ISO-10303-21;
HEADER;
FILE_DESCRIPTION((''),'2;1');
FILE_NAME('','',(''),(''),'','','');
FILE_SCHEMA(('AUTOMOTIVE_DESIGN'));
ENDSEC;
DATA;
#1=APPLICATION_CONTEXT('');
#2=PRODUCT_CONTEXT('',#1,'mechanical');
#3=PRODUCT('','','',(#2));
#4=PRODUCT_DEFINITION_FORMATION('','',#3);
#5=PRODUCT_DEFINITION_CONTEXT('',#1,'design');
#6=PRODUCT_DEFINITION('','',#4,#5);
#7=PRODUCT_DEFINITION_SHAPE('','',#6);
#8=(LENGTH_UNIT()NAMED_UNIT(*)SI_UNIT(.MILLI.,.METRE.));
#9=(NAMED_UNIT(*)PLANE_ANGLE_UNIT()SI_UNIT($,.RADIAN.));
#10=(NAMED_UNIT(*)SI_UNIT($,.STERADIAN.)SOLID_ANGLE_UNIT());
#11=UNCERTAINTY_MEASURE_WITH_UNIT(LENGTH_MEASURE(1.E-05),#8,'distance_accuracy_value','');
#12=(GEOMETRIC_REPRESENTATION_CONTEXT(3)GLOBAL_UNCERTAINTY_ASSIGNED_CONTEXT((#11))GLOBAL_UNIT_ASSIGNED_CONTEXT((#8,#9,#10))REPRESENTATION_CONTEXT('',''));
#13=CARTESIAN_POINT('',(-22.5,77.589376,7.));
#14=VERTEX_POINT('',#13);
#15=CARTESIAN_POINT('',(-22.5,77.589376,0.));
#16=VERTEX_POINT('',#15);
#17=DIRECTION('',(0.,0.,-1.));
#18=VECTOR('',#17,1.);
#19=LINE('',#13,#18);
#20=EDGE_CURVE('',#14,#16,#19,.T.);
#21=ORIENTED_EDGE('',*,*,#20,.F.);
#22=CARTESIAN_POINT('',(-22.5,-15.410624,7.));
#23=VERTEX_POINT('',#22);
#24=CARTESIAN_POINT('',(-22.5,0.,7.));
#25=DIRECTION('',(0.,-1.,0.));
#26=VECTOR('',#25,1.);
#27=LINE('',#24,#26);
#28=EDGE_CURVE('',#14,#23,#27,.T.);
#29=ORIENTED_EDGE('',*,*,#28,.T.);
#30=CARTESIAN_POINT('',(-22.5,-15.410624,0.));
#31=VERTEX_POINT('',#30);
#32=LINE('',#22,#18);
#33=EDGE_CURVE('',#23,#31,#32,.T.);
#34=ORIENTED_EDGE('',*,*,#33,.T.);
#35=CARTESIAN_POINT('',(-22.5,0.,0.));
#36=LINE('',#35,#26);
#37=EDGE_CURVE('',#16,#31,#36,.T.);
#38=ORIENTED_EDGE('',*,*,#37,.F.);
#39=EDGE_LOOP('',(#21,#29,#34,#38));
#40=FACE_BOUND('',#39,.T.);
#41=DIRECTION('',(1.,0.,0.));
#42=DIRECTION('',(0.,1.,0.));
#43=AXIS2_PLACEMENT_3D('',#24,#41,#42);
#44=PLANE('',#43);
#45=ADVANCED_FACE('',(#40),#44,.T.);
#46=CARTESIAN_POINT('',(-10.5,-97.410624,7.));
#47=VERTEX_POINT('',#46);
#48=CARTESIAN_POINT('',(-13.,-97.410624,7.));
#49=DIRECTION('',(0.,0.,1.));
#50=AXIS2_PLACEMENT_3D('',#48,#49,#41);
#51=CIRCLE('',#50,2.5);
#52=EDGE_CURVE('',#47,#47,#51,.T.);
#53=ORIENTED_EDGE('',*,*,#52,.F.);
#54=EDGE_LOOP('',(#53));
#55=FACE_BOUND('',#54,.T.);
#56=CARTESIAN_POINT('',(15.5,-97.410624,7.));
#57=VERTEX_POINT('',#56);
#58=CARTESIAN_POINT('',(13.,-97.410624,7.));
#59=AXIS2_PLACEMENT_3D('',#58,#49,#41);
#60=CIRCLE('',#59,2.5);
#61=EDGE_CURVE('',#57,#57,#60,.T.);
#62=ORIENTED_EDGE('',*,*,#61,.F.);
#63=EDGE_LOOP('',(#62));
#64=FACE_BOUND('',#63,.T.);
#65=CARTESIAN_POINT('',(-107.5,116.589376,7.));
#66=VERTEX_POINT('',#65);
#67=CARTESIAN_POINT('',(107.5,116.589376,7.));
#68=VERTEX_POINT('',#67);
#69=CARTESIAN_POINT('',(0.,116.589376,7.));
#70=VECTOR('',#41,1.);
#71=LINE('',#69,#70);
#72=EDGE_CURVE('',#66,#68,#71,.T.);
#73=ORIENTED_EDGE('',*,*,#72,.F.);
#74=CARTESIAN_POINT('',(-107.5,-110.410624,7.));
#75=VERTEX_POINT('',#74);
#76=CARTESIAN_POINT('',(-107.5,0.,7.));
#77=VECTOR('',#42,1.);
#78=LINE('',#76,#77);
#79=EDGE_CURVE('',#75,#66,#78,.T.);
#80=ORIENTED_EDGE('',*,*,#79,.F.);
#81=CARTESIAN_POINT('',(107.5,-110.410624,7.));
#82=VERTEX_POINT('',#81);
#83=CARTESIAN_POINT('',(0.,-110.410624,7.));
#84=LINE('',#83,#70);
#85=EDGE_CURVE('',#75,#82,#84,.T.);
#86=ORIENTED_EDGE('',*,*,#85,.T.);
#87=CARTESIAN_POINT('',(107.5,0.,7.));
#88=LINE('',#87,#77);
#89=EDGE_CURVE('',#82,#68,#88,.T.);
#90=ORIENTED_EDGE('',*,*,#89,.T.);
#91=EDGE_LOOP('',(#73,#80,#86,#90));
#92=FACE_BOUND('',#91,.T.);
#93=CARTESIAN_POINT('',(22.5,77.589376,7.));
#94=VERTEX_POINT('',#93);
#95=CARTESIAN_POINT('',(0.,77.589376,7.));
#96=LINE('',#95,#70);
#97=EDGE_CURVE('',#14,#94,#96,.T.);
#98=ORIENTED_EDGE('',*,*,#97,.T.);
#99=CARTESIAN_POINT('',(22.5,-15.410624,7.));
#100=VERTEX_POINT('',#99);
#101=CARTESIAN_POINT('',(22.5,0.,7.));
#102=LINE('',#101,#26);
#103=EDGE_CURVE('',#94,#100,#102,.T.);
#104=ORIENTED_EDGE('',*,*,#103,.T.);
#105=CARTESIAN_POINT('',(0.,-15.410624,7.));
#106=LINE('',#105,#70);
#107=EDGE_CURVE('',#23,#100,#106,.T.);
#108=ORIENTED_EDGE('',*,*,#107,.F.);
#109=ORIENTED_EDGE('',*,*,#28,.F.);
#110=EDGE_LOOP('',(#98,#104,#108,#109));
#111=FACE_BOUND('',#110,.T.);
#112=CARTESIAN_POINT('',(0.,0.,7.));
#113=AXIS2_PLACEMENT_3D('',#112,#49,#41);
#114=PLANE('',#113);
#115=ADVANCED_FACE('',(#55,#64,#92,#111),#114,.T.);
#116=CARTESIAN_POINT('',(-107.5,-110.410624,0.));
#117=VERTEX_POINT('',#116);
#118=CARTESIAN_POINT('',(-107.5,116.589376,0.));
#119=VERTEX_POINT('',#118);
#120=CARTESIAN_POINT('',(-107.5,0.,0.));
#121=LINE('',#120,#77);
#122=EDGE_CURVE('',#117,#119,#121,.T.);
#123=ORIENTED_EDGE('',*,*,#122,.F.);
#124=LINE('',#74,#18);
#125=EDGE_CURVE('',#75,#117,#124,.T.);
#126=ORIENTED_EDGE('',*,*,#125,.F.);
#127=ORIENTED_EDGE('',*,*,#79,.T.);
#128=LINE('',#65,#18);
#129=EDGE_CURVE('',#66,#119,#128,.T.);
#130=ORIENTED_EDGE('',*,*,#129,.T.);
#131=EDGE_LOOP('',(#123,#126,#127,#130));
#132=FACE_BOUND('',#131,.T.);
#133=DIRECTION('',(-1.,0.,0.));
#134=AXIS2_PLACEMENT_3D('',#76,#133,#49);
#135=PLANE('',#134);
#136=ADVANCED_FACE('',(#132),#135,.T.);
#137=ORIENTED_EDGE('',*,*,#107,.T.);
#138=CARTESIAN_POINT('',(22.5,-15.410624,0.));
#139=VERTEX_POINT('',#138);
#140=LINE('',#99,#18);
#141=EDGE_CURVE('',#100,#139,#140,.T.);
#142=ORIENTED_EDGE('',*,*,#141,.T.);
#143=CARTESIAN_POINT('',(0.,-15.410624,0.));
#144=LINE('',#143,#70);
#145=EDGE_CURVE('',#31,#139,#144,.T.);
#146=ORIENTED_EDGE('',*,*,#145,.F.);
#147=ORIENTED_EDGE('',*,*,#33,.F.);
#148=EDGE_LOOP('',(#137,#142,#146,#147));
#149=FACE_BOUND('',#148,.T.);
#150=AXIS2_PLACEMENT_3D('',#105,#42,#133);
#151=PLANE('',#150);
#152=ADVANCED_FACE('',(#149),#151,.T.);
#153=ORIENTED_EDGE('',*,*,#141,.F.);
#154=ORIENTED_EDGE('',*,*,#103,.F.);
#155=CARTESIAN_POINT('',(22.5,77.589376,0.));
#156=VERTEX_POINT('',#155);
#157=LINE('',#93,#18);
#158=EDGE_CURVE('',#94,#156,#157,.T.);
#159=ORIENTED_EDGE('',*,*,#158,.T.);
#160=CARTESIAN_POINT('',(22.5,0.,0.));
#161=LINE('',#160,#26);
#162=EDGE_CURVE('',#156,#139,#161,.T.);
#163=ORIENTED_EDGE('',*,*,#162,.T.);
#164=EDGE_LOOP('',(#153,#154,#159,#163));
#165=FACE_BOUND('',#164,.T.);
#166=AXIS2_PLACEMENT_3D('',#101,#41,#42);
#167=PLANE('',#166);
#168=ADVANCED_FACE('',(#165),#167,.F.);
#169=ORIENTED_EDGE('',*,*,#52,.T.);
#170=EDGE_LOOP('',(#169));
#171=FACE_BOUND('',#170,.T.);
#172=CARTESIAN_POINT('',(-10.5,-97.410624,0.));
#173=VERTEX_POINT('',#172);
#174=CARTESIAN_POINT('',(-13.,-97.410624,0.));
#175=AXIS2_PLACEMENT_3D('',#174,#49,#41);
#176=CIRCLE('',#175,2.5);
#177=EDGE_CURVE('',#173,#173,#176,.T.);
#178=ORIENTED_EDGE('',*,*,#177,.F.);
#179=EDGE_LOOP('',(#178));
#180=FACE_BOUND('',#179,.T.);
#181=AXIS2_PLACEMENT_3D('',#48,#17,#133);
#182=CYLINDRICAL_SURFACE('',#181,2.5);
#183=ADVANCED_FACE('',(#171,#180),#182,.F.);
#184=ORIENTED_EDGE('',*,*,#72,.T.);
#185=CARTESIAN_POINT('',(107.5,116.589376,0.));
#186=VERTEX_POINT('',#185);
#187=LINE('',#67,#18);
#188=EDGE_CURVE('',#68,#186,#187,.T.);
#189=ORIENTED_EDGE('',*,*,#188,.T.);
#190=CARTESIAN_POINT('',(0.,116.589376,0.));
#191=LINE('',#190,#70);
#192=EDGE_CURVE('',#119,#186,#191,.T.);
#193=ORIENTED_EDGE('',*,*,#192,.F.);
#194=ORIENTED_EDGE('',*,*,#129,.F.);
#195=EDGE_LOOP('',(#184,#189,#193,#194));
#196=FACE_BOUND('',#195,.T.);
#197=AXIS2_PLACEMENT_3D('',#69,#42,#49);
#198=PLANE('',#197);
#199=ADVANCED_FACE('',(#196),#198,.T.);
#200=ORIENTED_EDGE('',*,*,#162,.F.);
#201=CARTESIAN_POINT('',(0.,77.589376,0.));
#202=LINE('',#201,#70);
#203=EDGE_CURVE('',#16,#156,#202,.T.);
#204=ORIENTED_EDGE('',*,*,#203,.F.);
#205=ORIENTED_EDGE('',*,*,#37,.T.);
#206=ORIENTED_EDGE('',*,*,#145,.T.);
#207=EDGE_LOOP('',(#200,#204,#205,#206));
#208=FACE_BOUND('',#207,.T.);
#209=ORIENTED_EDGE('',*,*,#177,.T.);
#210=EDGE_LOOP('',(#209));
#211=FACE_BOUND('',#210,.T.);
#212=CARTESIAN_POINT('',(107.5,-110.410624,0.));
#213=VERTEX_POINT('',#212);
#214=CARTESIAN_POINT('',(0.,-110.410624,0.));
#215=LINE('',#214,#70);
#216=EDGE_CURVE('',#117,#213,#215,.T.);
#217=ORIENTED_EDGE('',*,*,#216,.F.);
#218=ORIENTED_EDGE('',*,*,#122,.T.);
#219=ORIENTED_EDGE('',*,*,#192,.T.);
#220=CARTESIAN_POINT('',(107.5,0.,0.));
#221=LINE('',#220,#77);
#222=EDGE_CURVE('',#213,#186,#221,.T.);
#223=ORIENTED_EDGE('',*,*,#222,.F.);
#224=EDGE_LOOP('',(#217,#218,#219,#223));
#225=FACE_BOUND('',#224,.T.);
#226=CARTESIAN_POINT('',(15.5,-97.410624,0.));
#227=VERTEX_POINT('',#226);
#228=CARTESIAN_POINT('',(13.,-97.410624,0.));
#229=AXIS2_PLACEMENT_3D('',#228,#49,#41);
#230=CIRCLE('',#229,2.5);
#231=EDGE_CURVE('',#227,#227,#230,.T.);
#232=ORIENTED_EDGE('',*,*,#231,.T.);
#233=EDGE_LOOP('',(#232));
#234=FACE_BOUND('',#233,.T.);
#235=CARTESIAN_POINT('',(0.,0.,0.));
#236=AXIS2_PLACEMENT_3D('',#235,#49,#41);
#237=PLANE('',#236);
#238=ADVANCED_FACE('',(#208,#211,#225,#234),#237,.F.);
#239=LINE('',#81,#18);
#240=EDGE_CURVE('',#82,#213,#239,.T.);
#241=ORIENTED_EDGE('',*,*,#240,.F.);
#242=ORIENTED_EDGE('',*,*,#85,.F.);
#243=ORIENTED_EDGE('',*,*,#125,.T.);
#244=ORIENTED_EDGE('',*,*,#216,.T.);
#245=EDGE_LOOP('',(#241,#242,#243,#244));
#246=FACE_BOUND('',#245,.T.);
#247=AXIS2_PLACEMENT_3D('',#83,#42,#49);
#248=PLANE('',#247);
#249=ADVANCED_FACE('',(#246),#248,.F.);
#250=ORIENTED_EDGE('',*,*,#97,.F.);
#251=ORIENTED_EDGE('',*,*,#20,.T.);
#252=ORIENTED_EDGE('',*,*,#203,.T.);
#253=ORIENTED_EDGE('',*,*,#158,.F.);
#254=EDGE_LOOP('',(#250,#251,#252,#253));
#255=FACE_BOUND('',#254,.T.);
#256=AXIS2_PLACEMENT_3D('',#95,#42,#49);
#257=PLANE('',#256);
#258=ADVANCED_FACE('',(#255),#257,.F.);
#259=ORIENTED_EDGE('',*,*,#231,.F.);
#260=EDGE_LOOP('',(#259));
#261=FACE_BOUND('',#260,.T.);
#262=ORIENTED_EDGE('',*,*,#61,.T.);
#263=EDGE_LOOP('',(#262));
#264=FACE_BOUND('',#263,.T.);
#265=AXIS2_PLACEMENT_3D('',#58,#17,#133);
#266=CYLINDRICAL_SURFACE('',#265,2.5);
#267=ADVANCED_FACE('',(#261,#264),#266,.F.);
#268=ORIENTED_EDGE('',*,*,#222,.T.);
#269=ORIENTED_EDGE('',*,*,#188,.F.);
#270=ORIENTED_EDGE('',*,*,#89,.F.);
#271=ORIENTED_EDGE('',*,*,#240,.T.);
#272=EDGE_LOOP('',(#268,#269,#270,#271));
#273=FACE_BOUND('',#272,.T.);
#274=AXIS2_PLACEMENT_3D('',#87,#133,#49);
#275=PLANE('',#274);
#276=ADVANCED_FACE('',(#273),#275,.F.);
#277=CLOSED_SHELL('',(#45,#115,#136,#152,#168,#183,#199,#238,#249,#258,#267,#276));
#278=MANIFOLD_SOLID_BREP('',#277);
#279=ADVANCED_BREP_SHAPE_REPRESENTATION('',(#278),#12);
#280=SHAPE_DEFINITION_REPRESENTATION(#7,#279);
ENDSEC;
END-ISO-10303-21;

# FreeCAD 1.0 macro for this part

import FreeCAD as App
import Part
import Sketcher

V = App.Vector


def add_polygon(sketch, points):
    """Adds a closed chain of lines whose ends are joined by coincident constraints."""
    first, n = sketch.GeometryCount, len(points)
    for a, b in zip(points, points[1:] + points[:1]):
        sketch.addGeometry(Part.LineSegment(App.Vector(*a, 0), App.Vector(*b, 0)), False)
    for i in range(n):
        sketch.addConstraint(Sketcher.Constraint("Coincident", first + i, 2, first + (i + 1) % n, 1))

doc = App.newDocument("Part")
params = doc.addObject("Spreadsheet::Sheet", "Params")
for row, (alias, value) in enumerate([
    ("sketch1_diameter", "5 mm"),
    ("sketch1_width", "215 mm"),
    ("sketch1_width2", "45 mm"),
    ("sketch1_height", "227 mm"),
    ("sketch1_height2", "93 mm"),
    ("pad1_length", "7 mm"),
], start=1):
    params.set(f"A{row}", alias)
    params.set(f"B{row}", "=" + value)
    params.setAlias(f"B{row}", alias)

body = doc.addObject("PartDesign::Body", "Body")

# Sketch on XY plane
sketch1 = doc.addObject("Sketcher::SketchObject", "Sketch")
body.addObject(sketch1)
sketch1.AttachmentSupport = (doc.XY_Plane, [""])
sketch1.MapMode = "FlatFace"
add_polygon(sketch1, [(-107.5, 116.6), (-107.5, -110.4), (107.5, -110.4), (107.5, 116.6)])  # lines 0-3
sketch1.addGeometry(Part.Circle(V(-13, -97.4, 0), V(0, 0, 1), 2.5), False)  # 4
sketch1.addGeometry(Part.Circle(V(13, -97.4, 0), V(0, 0, 1), 2.5), False)  # 5
add_polygon(sketch1, [(22.5, -15.4), (-22.5, -15.4), (-22.5, 77.6), (22.5, 77.6)])  # lines 6-9
sketch1.addConstraint(Sketcher.Constraint("Vertical", 0))
sketch1.addConstraint(Sketcher.Constraint("Horizontal", 1))
sketch1.addConstraint(Sketcher.Constraint("Vertical", 2))
sketch1.addConstraint(Sketcher.Constraint("Horizontal", 3))
sketch1.addConstraint(Sketcher.Constraint("Horizontal", 6))
sketch1.addConstraint(Sketcher.Constraint("Vertical", 7))
sketch1.addConstraint(Sketcher.Constraint("Horizontal", 8))
sketch1.addConstraint(Sketcher.Constraint("Vertical", 9))
sketch1.addConstraint(Sketcher.Constraint("Equal", 4, 5))
sketch1.addConstraint(Sketcher.Constraint("Symmetric", 4, 3, 5, 3, -2))
sketch1.addConstraint(Sketcher.Constraint("Diameter", 4, 5.0))
sketch1.addConstraint(Sketcher.Constraint("DistanceX", 1, 1, 1, 2, 215.0))
sketch1.addConstraint(Sketcher.Constraint("DistanceX", 6, 2, 6, 1, 45.0))
sketch1.addConstraint(Sketcher.Constraint("DistanceY", 0, 2, 0, 1, 227.0))
sketch1.addConstraint(Sketcher.Constraint("DistanceY", 7, 1, 7, 2, 93.0))
sketch1.addConstraint(Sketcher.Constraint("DistanceX", 4, 3, -1, 1, 13.0))
sketch1.addConstraint(Sketcher.Constraint("DistanceY", 0, 2, 4, 3, 13.0))
sketch1.addConstraint(Sketcher.Constraint("DistanceY", 4, 3, 6, 2, 82.0))
sketch1.addConstraint(Sketcher.Constraint("DistanceX", 0, 2, 6, 2, 85.0))
sketch1.addConstraint(Sketcher.Constraint("DistanceX", 0, 2, -1, 1, 107.5))
sketch1.addConstraint(Sketcher.Constraint("DistanceY", 4, 3, -1, 1, 97.410624))
sketch1.setExpression("Constraints[18]", "Params.sketch1_diameter")
sketch1.setExpression("Constraints[19]", "Params.sketch1_width")
sketch1.setExpression("Constraints[20]", "Params.sketch1_width2")
sketch1.setExpression("Constraints[21]", "Params.sketch1_height")
sketch1.setExpression("Constraints[22]", "Params.sketch1_height2")
pad1 = doc.addObject("PartDesign::Pad", "Pad")
body.addObject(pad1)
pad1.Profile = sketch1
pad1.setExpression("Length", "Params.pad1_length")

doc.recompute()
